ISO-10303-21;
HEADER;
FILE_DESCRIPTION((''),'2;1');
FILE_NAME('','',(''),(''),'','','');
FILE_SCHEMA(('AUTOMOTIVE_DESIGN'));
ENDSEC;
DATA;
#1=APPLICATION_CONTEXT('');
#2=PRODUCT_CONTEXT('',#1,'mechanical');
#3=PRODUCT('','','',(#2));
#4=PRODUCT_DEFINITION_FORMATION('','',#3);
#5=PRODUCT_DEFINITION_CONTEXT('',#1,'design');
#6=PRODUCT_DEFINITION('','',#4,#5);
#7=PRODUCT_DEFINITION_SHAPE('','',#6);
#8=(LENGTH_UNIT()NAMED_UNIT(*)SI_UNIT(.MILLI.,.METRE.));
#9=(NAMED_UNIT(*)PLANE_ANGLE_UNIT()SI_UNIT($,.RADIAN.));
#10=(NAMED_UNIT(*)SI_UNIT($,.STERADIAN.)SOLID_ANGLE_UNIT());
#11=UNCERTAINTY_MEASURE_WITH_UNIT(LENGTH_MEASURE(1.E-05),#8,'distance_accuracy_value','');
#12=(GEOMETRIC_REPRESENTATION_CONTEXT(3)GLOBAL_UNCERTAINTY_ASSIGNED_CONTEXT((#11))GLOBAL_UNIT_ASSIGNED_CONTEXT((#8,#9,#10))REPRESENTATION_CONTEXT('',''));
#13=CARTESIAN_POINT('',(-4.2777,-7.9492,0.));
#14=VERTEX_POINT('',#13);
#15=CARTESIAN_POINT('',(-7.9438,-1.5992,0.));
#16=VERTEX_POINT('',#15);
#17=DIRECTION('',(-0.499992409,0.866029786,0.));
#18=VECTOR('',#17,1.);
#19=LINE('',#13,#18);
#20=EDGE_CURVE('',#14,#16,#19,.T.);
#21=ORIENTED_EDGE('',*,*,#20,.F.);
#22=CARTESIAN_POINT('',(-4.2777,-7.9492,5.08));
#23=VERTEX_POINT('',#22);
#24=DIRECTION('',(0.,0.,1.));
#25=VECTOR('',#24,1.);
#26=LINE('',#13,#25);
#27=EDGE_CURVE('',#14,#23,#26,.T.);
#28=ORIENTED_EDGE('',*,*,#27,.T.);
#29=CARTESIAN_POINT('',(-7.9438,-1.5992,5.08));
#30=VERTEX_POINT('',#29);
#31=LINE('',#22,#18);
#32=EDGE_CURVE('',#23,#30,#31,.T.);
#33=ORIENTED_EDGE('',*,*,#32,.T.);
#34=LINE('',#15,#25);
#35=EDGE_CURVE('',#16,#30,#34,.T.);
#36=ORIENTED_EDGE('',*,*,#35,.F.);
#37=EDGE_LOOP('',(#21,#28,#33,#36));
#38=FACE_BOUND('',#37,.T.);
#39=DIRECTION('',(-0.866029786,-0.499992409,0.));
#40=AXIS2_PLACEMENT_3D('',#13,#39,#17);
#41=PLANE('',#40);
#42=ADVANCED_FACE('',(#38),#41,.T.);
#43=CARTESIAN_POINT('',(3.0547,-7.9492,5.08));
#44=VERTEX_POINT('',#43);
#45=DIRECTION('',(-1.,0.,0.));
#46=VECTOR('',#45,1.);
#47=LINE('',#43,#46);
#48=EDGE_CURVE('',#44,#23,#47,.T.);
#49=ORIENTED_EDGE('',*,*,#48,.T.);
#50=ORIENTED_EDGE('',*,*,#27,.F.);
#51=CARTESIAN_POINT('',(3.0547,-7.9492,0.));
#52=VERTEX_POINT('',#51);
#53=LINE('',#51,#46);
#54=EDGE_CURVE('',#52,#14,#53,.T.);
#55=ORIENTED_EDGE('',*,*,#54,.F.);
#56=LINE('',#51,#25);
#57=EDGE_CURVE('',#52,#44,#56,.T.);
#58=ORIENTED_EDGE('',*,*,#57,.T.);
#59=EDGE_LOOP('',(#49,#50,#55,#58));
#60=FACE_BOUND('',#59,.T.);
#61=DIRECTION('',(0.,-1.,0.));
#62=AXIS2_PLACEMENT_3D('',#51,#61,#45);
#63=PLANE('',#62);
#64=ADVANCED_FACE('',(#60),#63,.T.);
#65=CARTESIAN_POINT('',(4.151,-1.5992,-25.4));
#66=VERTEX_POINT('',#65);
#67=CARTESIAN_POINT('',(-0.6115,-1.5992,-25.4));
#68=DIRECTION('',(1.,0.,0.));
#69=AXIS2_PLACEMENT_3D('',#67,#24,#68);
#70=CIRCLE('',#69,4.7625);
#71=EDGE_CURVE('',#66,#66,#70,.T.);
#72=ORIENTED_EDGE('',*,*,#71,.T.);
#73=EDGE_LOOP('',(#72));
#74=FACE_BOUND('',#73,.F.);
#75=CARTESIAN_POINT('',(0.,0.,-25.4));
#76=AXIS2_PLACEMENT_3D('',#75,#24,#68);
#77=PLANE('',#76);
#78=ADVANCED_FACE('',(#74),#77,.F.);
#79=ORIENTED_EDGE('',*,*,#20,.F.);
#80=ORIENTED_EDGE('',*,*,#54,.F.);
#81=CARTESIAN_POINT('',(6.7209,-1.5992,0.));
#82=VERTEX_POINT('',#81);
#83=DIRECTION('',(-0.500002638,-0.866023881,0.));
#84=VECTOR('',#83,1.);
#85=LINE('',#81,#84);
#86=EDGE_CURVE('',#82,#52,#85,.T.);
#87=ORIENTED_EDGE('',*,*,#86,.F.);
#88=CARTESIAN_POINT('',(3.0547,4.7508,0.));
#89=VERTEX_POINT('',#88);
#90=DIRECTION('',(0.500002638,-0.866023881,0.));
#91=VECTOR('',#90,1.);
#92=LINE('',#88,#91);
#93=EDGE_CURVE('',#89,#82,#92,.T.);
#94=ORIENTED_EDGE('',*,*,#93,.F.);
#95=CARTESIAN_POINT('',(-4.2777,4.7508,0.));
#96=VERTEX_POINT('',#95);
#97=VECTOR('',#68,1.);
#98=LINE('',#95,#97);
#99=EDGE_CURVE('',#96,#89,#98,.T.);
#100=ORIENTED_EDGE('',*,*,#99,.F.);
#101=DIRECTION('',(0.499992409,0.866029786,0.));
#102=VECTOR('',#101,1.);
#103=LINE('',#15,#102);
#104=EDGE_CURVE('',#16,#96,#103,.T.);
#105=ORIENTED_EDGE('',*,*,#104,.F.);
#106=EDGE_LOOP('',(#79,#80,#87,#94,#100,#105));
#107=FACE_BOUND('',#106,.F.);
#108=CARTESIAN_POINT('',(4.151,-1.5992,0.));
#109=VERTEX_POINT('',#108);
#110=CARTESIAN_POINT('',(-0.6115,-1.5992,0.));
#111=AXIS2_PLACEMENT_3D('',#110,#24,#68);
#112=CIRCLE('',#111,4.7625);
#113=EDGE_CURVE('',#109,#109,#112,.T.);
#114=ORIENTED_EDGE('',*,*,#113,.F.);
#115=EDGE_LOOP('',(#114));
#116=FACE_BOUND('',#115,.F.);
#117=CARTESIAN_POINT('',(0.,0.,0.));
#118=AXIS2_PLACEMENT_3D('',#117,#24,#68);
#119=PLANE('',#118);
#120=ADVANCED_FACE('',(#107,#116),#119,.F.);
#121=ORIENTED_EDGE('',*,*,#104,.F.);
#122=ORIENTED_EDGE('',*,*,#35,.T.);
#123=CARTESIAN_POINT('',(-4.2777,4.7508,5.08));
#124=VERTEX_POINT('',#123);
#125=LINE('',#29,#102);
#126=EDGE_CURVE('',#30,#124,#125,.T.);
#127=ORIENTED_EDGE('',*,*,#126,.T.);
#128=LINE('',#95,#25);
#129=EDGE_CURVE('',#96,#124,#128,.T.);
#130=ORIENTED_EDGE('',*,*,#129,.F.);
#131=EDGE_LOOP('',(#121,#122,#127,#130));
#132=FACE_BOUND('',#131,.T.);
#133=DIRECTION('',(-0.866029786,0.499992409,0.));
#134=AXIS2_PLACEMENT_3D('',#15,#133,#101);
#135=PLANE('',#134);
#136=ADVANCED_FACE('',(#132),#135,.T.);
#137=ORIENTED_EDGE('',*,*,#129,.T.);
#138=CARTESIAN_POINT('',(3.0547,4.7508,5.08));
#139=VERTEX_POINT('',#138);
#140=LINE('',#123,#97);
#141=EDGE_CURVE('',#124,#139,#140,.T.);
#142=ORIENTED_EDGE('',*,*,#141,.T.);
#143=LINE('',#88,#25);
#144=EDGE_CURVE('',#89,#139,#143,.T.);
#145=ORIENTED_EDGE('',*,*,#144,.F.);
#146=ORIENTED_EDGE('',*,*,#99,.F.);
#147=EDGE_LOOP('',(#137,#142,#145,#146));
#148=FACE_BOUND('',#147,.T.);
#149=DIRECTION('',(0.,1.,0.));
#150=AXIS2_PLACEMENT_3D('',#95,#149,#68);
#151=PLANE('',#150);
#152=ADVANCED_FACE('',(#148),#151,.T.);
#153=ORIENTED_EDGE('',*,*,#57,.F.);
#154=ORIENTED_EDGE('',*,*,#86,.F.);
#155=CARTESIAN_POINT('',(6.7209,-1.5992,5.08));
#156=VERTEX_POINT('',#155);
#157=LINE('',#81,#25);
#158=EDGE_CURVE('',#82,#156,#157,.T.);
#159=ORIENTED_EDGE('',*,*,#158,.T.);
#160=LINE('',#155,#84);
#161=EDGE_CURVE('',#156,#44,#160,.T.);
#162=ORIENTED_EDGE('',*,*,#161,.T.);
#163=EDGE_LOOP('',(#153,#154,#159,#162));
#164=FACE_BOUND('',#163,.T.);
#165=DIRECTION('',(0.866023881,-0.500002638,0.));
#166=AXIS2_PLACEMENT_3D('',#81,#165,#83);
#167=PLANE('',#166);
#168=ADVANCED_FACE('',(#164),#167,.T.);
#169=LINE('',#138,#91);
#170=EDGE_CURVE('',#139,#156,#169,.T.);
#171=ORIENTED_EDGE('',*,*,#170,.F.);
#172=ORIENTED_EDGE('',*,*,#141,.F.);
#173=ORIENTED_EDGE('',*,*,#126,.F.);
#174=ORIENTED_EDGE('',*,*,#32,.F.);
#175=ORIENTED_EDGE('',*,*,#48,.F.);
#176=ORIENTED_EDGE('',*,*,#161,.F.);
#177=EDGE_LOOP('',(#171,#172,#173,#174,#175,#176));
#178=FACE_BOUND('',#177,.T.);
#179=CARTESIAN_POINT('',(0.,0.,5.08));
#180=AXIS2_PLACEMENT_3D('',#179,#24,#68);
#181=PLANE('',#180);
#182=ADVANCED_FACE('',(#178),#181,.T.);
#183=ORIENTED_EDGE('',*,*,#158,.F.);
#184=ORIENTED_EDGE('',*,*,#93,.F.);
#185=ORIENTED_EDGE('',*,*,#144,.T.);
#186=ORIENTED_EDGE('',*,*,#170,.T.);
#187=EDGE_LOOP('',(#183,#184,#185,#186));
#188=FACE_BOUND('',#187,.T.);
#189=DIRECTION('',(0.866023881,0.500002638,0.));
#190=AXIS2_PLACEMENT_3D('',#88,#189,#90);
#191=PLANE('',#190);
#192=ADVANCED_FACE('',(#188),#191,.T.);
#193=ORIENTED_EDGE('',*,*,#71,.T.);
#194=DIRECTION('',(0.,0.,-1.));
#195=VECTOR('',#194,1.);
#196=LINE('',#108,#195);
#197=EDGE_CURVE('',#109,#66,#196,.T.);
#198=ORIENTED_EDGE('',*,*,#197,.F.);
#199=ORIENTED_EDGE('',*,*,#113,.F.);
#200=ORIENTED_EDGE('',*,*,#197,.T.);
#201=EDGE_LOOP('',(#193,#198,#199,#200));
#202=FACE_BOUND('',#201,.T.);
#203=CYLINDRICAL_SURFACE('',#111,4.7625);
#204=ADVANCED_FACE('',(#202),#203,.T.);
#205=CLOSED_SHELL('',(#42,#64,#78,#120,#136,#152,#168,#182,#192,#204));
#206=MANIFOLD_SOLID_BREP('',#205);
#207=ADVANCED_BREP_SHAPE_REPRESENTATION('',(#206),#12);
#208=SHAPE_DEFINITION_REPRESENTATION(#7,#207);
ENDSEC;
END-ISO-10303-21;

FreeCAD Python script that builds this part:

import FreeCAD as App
import Part
import Sketcher
Q = App.Units.Quantity


def add_polygon(sketch, points):
    """Adds a closed chain of lines whose ends are joined by coincident constraints."""
    first, n = sketch.GeometryCount, len(points)
    for a, b in zip(points, points[1:] + points[:1]):
        sketch.addGeometry(Part.LineSegment(App.Vector(*a, 0), App.Vector(*b, 0)), False)
    for i in range(n):
        sketch.addConstraint(Sketcher.Constraint("Coincident", first + i, 2, first + (i + 1) % n, 1))

doc = App.newDocument("Part")
body = doc.addObject("PartDesign::Body", "Body")

# Sketch on XY plane
sketch1 = doc.addObject("Sketcher::SketchObject", "Sketch")
body.addObject(sketch1)
sketch1.AttachmentSupport = (doc.XY_Plane, [""])
sketch1.MapMode = "FlatFace"
sketch1.addGeometry(Part.Circle(App.Vector(-0.6, -1.6, 0), App.Vector(0, 0, 1), 4.8), False)
sketch1.addConstraint([
    Sketcher.Constraint("Diameter", 0, Q("0.375 in")),
    Sketcher.Constraint("DistanceX", 0, 3, -1, 1, Q("0.6115 mm")),
    Sketcher.Constraint("DistanceY", 0, 3, -1, 1, Q("1.5992 mm")),
])
pad1 = doc.addObject("PartDesign::Pad", "Pad")
body.addObject(pad1)
pad1.Profile = sketch1
pad1.Length = Q("1 in")
pad1.Reversed = True

# Sketch on XY plane
sketch2 = doc.addObject("Sketcher::SketchObject", "Sketch001")
body.addObject(sketch2)
sketch2.AttachmentSupport = (doc.XY_Plane, [""])
sketch2.MapMode = "FlatFace"
add_polygon(sketch2, [(-4, 5), (-8, -2), (-4, -8), (3, -8), (7, -2), (3, 5)])  # lines 0-5
sketch2.addConstraint([
    Sketcher.Constraint("Horizontal", 2),
    Sketcher.Constraint("Horizontal", 5),
    Sketcher.Constraint("Parallel", 0, 3),
    Sketcher.Constraint("Parallel", 1, 4),
    Sketcher.Constraint("Horizontal", 0, 2, 3, 2),
    Sketcher.Constraint("Vertical", 2, 2, 4, 2),
    Sketcher.Constraint("Vertical", 1, 2, 5, 2),
    Sketcher.Constraint("DistanceY", 2, 2, 4, 2, Q("0.5 in")),
    Sketcher.Constraint("Angle", 0, Q("-119.9995 deg")),
    Sketcher.Constraint("DistanceX", 0, 2, 2, 2, Q("0.433 in")),
    Sketcher.Constraint("DistanceX", -1, 1, 3, 2, Q("0.2646 in")),
    Sketcher.Constraint("DistanceY", 0, 2, -1, 1, Q("1.5992 mm")),
])
pad2 = doc.addObject("PartDesign::Pad", "Pad001")
body.addObject(pad2)
pad2.Profile = sketch2
pad2.Length = Q("0.2 in")

doc.recompute()
